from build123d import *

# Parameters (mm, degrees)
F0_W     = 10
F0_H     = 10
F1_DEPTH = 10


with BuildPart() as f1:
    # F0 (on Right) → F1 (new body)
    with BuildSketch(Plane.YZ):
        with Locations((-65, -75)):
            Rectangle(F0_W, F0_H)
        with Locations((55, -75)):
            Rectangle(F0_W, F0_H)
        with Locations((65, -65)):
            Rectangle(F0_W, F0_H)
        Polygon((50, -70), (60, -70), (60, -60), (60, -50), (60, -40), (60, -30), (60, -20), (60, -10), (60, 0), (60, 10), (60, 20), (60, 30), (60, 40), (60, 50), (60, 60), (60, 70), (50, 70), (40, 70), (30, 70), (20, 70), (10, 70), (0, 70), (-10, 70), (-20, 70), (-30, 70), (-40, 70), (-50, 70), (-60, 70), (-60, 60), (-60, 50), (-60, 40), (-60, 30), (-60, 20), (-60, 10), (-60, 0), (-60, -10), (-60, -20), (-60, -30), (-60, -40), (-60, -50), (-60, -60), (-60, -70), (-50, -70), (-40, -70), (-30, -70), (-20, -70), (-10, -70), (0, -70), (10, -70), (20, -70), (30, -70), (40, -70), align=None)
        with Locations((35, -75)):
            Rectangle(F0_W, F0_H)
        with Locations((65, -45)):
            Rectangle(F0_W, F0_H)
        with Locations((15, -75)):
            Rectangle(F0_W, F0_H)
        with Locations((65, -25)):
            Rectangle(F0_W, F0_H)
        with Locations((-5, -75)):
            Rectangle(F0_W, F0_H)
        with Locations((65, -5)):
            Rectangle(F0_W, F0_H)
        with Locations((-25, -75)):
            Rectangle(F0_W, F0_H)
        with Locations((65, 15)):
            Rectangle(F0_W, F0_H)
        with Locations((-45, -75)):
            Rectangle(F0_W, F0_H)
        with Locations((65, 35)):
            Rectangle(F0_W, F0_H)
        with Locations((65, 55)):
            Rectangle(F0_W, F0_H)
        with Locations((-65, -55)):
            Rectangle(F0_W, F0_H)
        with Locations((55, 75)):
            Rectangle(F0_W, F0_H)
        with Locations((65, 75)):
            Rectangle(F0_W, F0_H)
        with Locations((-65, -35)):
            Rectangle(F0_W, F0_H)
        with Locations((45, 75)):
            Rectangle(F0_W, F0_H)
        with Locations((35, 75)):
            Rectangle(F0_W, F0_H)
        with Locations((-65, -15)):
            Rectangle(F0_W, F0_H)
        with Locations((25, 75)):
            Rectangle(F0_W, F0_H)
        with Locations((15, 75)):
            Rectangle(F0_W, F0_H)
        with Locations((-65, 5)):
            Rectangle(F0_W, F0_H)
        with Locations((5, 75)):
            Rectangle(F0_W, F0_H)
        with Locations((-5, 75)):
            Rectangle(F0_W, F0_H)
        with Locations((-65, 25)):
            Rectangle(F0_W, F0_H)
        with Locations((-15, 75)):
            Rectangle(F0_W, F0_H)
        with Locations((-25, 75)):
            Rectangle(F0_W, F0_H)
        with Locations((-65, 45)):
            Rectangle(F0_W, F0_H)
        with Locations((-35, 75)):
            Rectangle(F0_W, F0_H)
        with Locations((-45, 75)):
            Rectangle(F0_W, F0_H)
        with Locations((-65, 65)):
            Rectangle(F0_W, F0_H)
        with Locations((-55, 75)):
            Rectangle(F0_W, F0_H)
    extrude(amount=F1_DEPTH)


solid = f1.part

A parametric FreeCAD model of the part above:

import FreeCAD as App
import Part
import Sketcher

doc = App.newDocument("Part")
params = doc.addObject("Spreadsheet::Sheet", "Params")
for row, (alias, value) in enumerate([
    ("sketch1_width", "10 mm"),
    ("pad1_length", "10 mm"),
], start=1):
    params.set(f"A{row}", alias)
    params.set(f"B{row}", "=" + value)
    params.setAlias(f"B{row}", alias)

body = doc.addObject("PartDesign::Body", "Body")
body.AllowCompound = True

# Sketch on YZ plane
sketch1 = body.newObject("Sketcher::SketchObject", "Sketch")
sketch1.AttachmentSupport = (doc.getObject("YZ_Plane"), [""])
sketch1.MapMode = "FlatFace"
sketch1.addGeometry([
    Part.LineSegment(App.Vector(-70, -70, 0), App.Vector(-70, -80, 0)),  # 0
    Part.LineSegment(App.Vector(-70, -80, 0), App.Vector(-60, -80, 0)),  # 1
    Part.LineSegment(App.Vector(-60, -80, 0), App.Vector(-60, -70, 0)),  # 2
    Part.LineSegment(App.Vector(-60, -70, 0), App.Vector(-70, -70, 0)),  # 3
    Part.LineSegment(App.Vector(50, -70, 0), App.Vector(50, -80, 0)),  # 4
    Part.LineSegment(App.Vector(50, -80, 0), App.Vector(60, -80, 0)),  # 5
    Part.LineSegment(App.Vector(60, -80, 0), App.Vector(60, -70, 0)),  # 6
    Part.LineSegment(App.Vector(60, -70, 0), App.Vector(70, -70, 0)),  # 7
    Part.LineSegment(App.Vector(70, -70, 0), App.Vector(70, -60, 0)),  # 8
    Part.LineSegment(App.Vector(70, -60, 0), App.Vector(60, -60, 0)),  # 9
    Part.LineSegment(App.Vector(60, -60, 0), App.Vector(60, -50, 0)),  # 10
    Part.LineSegment(App.Vector(60, -50, 0), App.Vector(70, -50, 0)),  # 11
    Part.LineSegment(App.Vector(70, -50, 0), App.Vector(70, -40, 0)),  # 12
    Part.LineSegment(App.Vector(70, -40, 0), App.Vector(60, -40, 0)),  # 13
    Part.LineSegment(App.Vector(60, -40, 0), App.Vector(60, -30, 0)),  # 14
    Part.LineSegment(App.Vector(60, -30, 0), App.Vector(70, -30, 0)),  # 15
    Part.LineSegment(App.Vector(70, -30, 0), App.Vector(70, -20, 0)),  # 16
    Part.LineSegment(App.Vector(70, -20, 0), App.Vector(60, -20, 0)),  # 17
    Part.LineSegment(App.Vector(60, -20, 0), App.Vector(60, -10, 0)),  # 18
    Part.LineSegment(App.Vector(60, -10, 0), App.Vector(70, -10, 0)),  # 19
    Part.LineSegment(App.Vector(70, -10, 0), App.Vector(70, 0, 0)),  # 20
    Part.LineSegment(App.Vector(70, 0, 0), App.Vector(60, 0, 0)),  # 21
    Part.LineSegment(App.Vector(60, 0, 0), App.Vector(60, 10, 0)),  # 22
    Part.LineSegment(App.Vector(60, 10, 0), App.Vector(70, 10, 0)),  # 23
    Part.LineSegment(App.Vector(70, 10, 0), App.Vector(70, 20, 0)),  # 24
    Part.LineSegment(App.Vector(70, 20, 0), App.Vector(60, 20, 0)),  # 25
    Part.LineSegment(App.Vector(60, 20, 0), App.Vector(60, 30, 0)),  # 26
    Part.LineSegment(App.Vector(60, 30, 0), App.Vector(70, 30, 0)),  # 27
    Part.LineSegment(App.Vector(70, 30, 0), App.Vector(70, 40, 0)),  # 28
    Part.LineSegment(App.Vector(70, 40, 0), App.Vector(60, 40, 0)),  # 29
    Part.LineSegment(App.Vector(60, 40, 0), App.Vector(60, 50, 0)),  # 30
    Part.LineSegment(App.Vector(60, 50, 0), App.Vector(70, 50, 0)),  # 31
    Part.LineSegment(App.Vector(70, 50, 0), App.Vector(70, 60, 0)),  # 32
    Part.LineSegment(App.Vector(70, 60, 0), App.Vector(60, 60, 0)),  # 33
    Part.LineSegment(App.Vector(60, 60, 0), App.Vector(60, 70, 0)),  # 34
    Part.LineSegment(App.Vector(60, 70, 0), App.Vector(70, 70, 0)),  # 35
    Part.LineSegment(App.Vector(70, 70, 0), App.Vector(70, 80, 0)),  # 36
    Part.LineSegment(App.Vector(70, 80, 0), App.Vector(-60, 80, 0)),  # 37
    Part.LineSegment(App.Vector(-60, 80, 0), App.Vector(-60, 70, 0)),  # 38
    Part.LineSegment(App.Vector(-60, 70, 0), App.Vector(-70, 70, 0)),  # 39
    Part.LineSegment(App.Vector(-70, 70, 0), App.Vector(-70, 60, 0)),  # 40
    Part.LineSegment(App.Vector(-70, 60, 0), App.Vector(-60, 60, 0)),  # 41
    Part.LineSegment(App.Vector(-60, 60, 0), App.Vector(-60, 50, 0)),  # 42
    Part.LineSegment(App.Vector(-60, 50, 0), App.Vector(-70, 50, 0)),  # 43
    Part.LineSegment(App.Vector(-70, 50, 0), App.Vector(-70, 40, 0)),  # 44
    Part.LineSegment(App.Vector(-70, 40, 0), App.Vector(-60, 40, 0)),  # 45
    Part.LineSegment(App.Vector(-60, 40, 0), App.Vector(-60, 30, 0)),  # 46
    Part.LineSegment(App.Vector(-60, 30, 0), App.Vector(-70, 30, 0)),  # 47
    Part.LineSegment(App.Vector(-70, 30, 0), App.Vector(-70, 20, 0)),  # 48
    Part.LineSegment(App.Vector(-70, 20, 0), App.Vector(-60, 20, 0)),  # 49
    Part.LineSegment(App.Vector(-60, 20, 0), App.Vector(-60, 10, 0)),  # 50
    Part.LineSegment(App.Vector(-60, 10, 0), App.Vector(-70, 10, 0)),  # 51
    Part.LineSegment(App.Vector(-70, 10, 0), App.Vector(-70, 0, 0)),  # 52
    Part.LineSegment(App.Vector(-70, 0, 0), App.Vector(-60, 0, 0)),  # 53
    Part.LineSegment(App.Vector(-60, 0, 0), App.Vector(-60, -10, 0)),  # 54
    Part.LineSegment(App.Vector(-60, -10, 0), App.Vector(-70, -10, 0)),  # 55
    Part.LineSegment(App.Vector(-70, -10, 0), App.Vector(-70, -20, 0)),  # 56
    Part.LineSegment(App.Vector(-70, -20, 0), App.Vector(-60, -20, 0)),  # 57
    Part.LineSegment(App.Vector(-60, -20, 0), App.Vector(-60, -30, 0)),  # 58
    Part.LineSegment(App.Vector(-60, -30, 0), App.Vector(-70, -30, 0)),  # 59
    Part.LineSegment(App.Vector(-70, -30, 0), App.Vector(-70, -40, 0)),  # 60
    Part.LineSegment(App.Vector(-70, -40, 0), App.Vector(-60, -40, 0)),  # 61
    Part.LineSegment(App.Vector(-60, -40, 0), App.Vector(-60, -50, 0)),  # 62
    Part.LineSegment(App.Vector(-60, -50, 0), App.Vector(-70, -50, 0)),  # 63
    Part.LineSegment(App.Vector(-70, -50, 0), App.Vector(-70, -60, 0)),  # 64
    Part.LineSegment(App.Vector(-70, -60, 0), App.Vector(-60, -60, 0)),  # 65
    Part.LineSegment(App.Vector(-60, -60, 0), App.Vector(-60, -70, 0)),  # 66
    Part.LineSegment(App.Vector(-60, -70, 0), App.Vector(-50, -70, 0)),  # 67
    Part.LineSegment(App.Vector(-50, -70, 0), App.Vector(-50, -80, 0)),  # 68
    Part.LineSegment(App.Vector(-50, -80, 0), App.Vector(-40, -80, 0)),  # 69
    Part.LineSegment(App.Vector(-40, -80, 0), App.Vector(-40, -70, 0)),  # 70
    Part.LineSegment(App.Vector(-40, -70, 0), App.Vector(-30, -70, 0)),  # 71
    Part.LineSegment(App.Vector(-30, -70, 0), App.Vector(-30, -80, 0)),  # 72
    Part.LineSegment(App.Vector(-30, -80, 0), App.Vector(-20, -80, 0)),  # 73
    Part.LineSegment(App.Vector(-20, -80, 0), App.Vector(-20, -70, 0)),  # 74
    Part.LineSegment(App.Vector(-20, -70, 0), App.Vector(-10, -70, 0)),  # 75
    Part.LineSegment(App.Vector(-10, -70, 0), App.Vector(-10, -80, 0)),  # 76
    Part.LineSegment(App.Vector(-10, -80, 0), App.Vector(0, -80, 0)),  # 77
    Part.LineSegment(App.Vector(0, -80, 0), App.Vector(0, -70, 0)),  # 78
    Part.LineSegment(App.Vector(0, -70, 0), App.Vector(10, -70, 0)),  # 79
    Part.LineSegment(App.Vector(10, -70, 0), App.Vector(10, -80, 0)),  # 80
    Part.LineSegment(App.Vector(10, -80, 0), App.Vector(20, -80, 0)),  # 81
    Part.LineSegment(App.Vector(20, -80, 0), App.Vector(20, -70, 0)),  # 82
    Part.LineSegment(App.Vector(20, -70, 0), App.Vector(30, -70, 0)),  # 83
    Part.LineSegment(App.Vector(30, -70, 0), App.Vector(30, -80, 0)),  # 84
    Part.LineSegment(App.Vector(30, -80, 0), App.Vector(40, -80, 0)),  # 85
    Part.LineSegment(App.Vector(40, -80, 0), App.Vector(40, -70, 0)),  # 86
    Part.LineSegment(App.Vector(40, -70, 0), App.Vector(50, -70, 0)),  # 87
], False)
sketch1.addConstraint([
    Sketcher.Constraint("Coincident", 0, 2, 1, 1),
    Sketcher.Constraint("Coincident", 1, 2, 2, 1),
    Sketcher.Constraint("Coincident", 2, 2, 3, 1),
    Sketcher.Constraint("Coincident", 3, 2, 0, 1),
    Sketcher.Constraint("Coincident", 4, 2, 5, 1),
    Sketcher.Constraint("Coincident", 5, 2, 6, 1),
    Sketcher.Constraint("Coincident", 6, 2, 7, 1),
    Sketcher.Constraint("Coincident", 7, 2, 8, 1),
    Sketcher.Constraint("Coincident", 8, 2, 9, 1),
    Sketcher.Constraint("Coincident", 9, 2, 10, 1),
    Sketcher.Constraint("Coincident", 10, 2, 11, 1),
    Sketcher.Constraint("Coincident", 11, 2, 12, 1),
    Sketcher.Constraint("Coincident", 12, 2, 13, 1),
    Sketcher.Constraint("Coincident", 13, 2, 14, 1),
    Sketcher.Constraint("Coincident", 14, 2, 15, 1),
    Sketcher.Constraint("Coincident", 15, 2, 16, 1),
    Sketcher.Constraint("Coincident", 16, 2, 17, 1),
    Sketcher.Constraint("Coincident", 17, 2, 18, 1),
    Sketcher.Constraint("Coincident", 18, 2, 19, 1),
    Sketcher.Constraint("Coincident", 19, 2, 20, 1),
    Sketcher.Constraint("Coincident", 20, 2, 21, 1),
    Sketcher.Constraint("Coincident", 21, 2, 22, 1),
    Sketcher.Constraint("Coincident", 22, 2, 23, 1),
    Sketcher.Constraint("Coincident", 23, 2, 24, 1),
    Sketcher.Constraint("Coincident", 24, 2, 25, 1),
    Sketcher.Constraint("Coincident", 25, 2, 26, 1),
    Sketcher.Constraint("Coincident", 26, 2, 27, 1),
    Sketcher.Constraint("Coincident", 27, 2, 28, 1),
    Sketcher.Constraint("Coincident", 28, 2, 29, 1),
    Sketcher.Constraint("Coincident", 29, 2, 30, 1),
    Sketcher.Constraint("Coincident", 30, 2, 31, 1),
    Sketcher.Constraint("Coincident", 31, 2, 32, 1),
    Sketcher.Constraint("Coincident", 32, 2, 33, 1),
    Sketcher.Constraint("Coincident", 33, 2, 34, 1),
    Sketcher.Constraint("Coincident", 34, 2, 35, 1),
    Sketcher.Constraint("Coincident", 35, 2, 36, 1),
    Sketcher.Constraint("Coincident", 36, 2, 37, 1),
    Sketcher.Constraint("Coincident", 37, 2, 38, 1),
    Sketcher.Constraint("Coincident", 38, 2, 39, 1),
    Sketcher.Constraint("Coincident", 39, 2, 40, 1),
    Sketcher.Constraint("Coincident", 40, 2, 41, 1),
    Sketcher.Constraint("Coincident", 41, 2, 42, 1),
    Sketcher.Constraint("Coincident", 42, 2, 43, 1),
    Sketcher.Constraint("Coincident", 43, 2, 44, 1),
    Sketcher.Constraint("Coincident", 44, 2, 45, 1),
    Sketcher.Constraint("Coincident", 45, 2, 46, 1),
    Sketcher.Constraint("Coincident", 46, 2, 47, 1),
    Sketcher.Constraint("Coincident", 47, 2, 48, 1),
    Sketcher.Constraint("Coincident", 48, 2, 49, 1),
    Sketcher.Constraint("Coincident", 49, 2, 50, 1),
    Sketcher.Constraint("Coincident", 50, 2, 51, 1),
    Sketcher.Constraint("Coincident", 51, 2, 52, 1),
    Sketcher.Constraint("Coincident", 52, 2, 53, 1),
    Sketcher.Constraint("Coincident", 53, 2, 54, 1),
    Sketcher.Constraint("Coincident", 54, 2, 55, 1),
    Sketcher.Constraint("Coincident", 55, 2, 56, 1),
    Sketcher.Constraint("Coincident", 56, 2, 57, 1),
    Sketcher.Constraint("Coincident", 57, 2, 58, 1),
    Sketcher.Constraint("Coincident", 58, 2, 59, 1),
    Sketcher.Constraint("Coincident", 59, 2, 60, 1),
    Sketcher.Constraint("Coincident", 60, 2, 61, 1),
    Sketcher.Constraint("Coincident", 61, 2, 62, 1),
    Sketcher.Constraint("Coincident", 62, 2, 63, 1),
    Sketcher.Constraint("Coincident", 63, 2, 64, 1),
    Sketcher.Constraint("Coincident", 64, 2, 65, 1),
    Sketcher.Constraint("Coincident", 65, 2, 66, 1),
    Sketcher.Constraint("Coincident", 66, 2, 67, 1),
    Sketcher.Constraint("Coincident", 67, 2, 68, 1),
    Sketcher.Constraint("Coincident", 68, 2, 69, 1),
    Sketcher.Constraint("Coincident", 69, 2, 70, 1),
    Sketcher.Constraint("Coincident", 70, 2, 71, 1),
    Sketcher.Constraint("Coincident", 71, 2, 72, 1),
    Sketcher.Constraint("Coincident", 72, 2, 73, 1),
    Sketcher.Constraint("Coincident", 73, 2, 74, 1),
    Sketcher.Constraint("Coincident", 74, 2, 75, 1),
    Sketcher.Constraint("Coincident", 75, 2, 76, 1),
    Sketcher.Constraint("Coincident", 76, 2, 77, 1),
    Sketcher.Constraint("Coincident", 77, 2, 78, 1),
    Sketcher.Constraint("Coincident", 78, 2, 79, 1),
    Sketcher.Constraint("Coincident", 79, 2, 80, 1),
    Sketcher.Constraint("Coincident", 80, 2, 81, 1),
    Sketcher.Constraint("Coincident", 81, 2, 82, 1),
    Sketcher.Constraint("Coincident", 82, 2, 83, 1),
    Sketcher.Constraint("Coincident", 83, 2, 84, 1),
    Sketcher.Constraint("Coincident", 84, 2, 85, 1),
    Sketcher.Constraint("Coincident", 85, 2, 86, 1),
    Sketcher.Constraint("Coincident", 86, 2, 87, 1),
    Sketcher.Constraint("Coincident", 87, 2, 4, 1),
    Sketcher.Constraint("Vertical", 0),
    Sketcher.Constraint("Horizontal", 1),
    Sketcher.Constraint("Vertical", 2),
    Sketcher.Constraint("Horizontal", 3),
    Sketcher.Constraint("Vertical", 4),
    Sketcher.Constraint("Horizontal", 5),
    Sketcher.Constraint("Vertical", 6),
    Sketcher.Constraint("Horizontal", 7),
    Sketcher.Constraint("Vertical", 8),
    Sketcher.Constraint("Horizontal", 9),
    Sketcher.Constraint("Vertical", 10),
    Sketcher.Constraint("Horizontal", 11),
    Sketcher.Constraint("Vertical", 12),
    Sketcher.Constraint("Horizontal", 13),
    Sketcher.Constraint("Vertical", 14),
    Sketcher.Constraint("Horizontal", 15),
    Sketcher.Constraint("Vertical", 16),
    Sketcher.Constraint("Horizontal", 17),
    Sketcher.Constraint("Vertical", 18),
    Sketcher.Constraint("Horizontal", 19),
    Sketcher.Constraint("Vertical", 20),
    Sketcher.Constraint("Horizontal", 21),
    Sketcher.Constraint("Vertical", 22),
    Sketcher.Constraint("Horizontal", 23),
    Sketcher.Constraint("Vertical", 24),
    Sketcher.Constraint("Horizontal", 25),
    Sketcher.Constraint("Vertical", 26),
    Sketcher.Constraint("Horizontal", 27),
    Sketcher.Constraint("Vertical", 28),
    Sketcher.Constraint("Horizontal", 29),
    Sketcher.Constraint("Vertical", 30),
    Sketcher.Constraint("Horizontal", 31),
    Sketcher.Constraint("Vertical", 32),
    Sketcher.Constraint("Horizontal", 33),
    Sketcher.Constraint("Vertical", 34),
    Sketcher.Constraint("Horizontal", 35),
    Sketcher.Constraint("Vertical", 36),
    Sketcher.Constraint("Horizontal", 37),
    Sketcher.Constraint("Vertical", 38),
    Sketcher.Constraint("Horizontal", 39),
    Sketcher.Constraint("Vertical", 40),
    Sketcher.Constraint("Horizontal", 41),
    Sketcher.Constraint("Vertical", 42),
    Sketcher.Constraint("Horizontal", 43),
    Sketcher.Constraint("Vertical", 44),
    Sketcher.Constraint("Horizontal", 45),
    Sketcher.Constraint("Vertical", 46),
    Sketcher.Constraint("Horizontal", 47),
    Sketcher.Constraint("Vertical", 48),
    Sketcher.Constraint("Horizontal", 49),
    Sketcher.Constraint("Vertical", 50),
    Sketcher.Constraint("Horizontal", 51),
    Sketcher.Constraint("Vertical", 52),
    Sketcher.Constraint("Horizontal", 53),
    Sketcher.Constraint("Vertical", 54),
    Sketcher.Constraint("Horizontal", 55),
    Sketcher.Constraint("Vertical", 56),
    Sketcher.Constraint("Horizontal", 57),
    Sketcher.Constraint("Vertical", 58),
    Sketcher.Constraint("Horizontal", 59),
    Sketcher.Constraint("Vertical", 60),
    Sketcher.Constraint("Horizontal", 61),
    Sketcher.Constraint("Vertical", 62),
    Sketcher.Constraint("Horizontal", 63),
    Sketcher.Constraint("Vertical", 64),
    Sketcher.Constraint("Horizontal", 65),
    Sketcher.Constraint("Vertical", 66),
    Sketcher.Constraint("Horizontal", 67),
    Sketcher.Constraint("Vertical", 68),
    Sketcher.Constraint("Horizontal", 69),
    Sketcher.Constraint("Vertical", 70),
    Sketcher.Constraint("Horizontal", 71),
    Sketcher.Constraint("Vertical", 72),
    Sketcher.Constraint("Horizontal", 73),
    Sketcher.Constraint("Vertical", 74),
    Sketcher.Constraint("Horizontal", 75),
    Sketcher.Constraint("Vertical", 76),
    Sketcher.Constraint("Horizontal", 77),
    Sketcher.Constraint("Vertical", 78),
    Sketcher.Constraint("Horizontal", 79),
    Sketcher.Constraint("Vertical", 80),
    Sketcher.Constraint("Horizontal", 81),
    Sketcher.Constraint("Vertical", 82),
    Sketcher.Constraint("Horizontal", 83),
    Sketcher.Constraint("Vertical", 84),
    Sketcher.Constraint("Horizontal", 85),
    Sketcher.Constraint("Vertical", 86),
    Sketcher.Constraint("Horizontal", 87),
    Sketcher.Constraint("Coincident", 66, 2, 2, 2),
    Sketcher.Constraint("Symmetric", 2, 2, 34, 2, -1, 1),
    Sketcher.Constraint("Symmetric", 0, 2, 36, 2, -1, 1),
    Sketcher.Constraint("Symmetric", 5, 2, 37, 2, -1, 1),
    Sketcher.Constraint("Symmetric", 7, 2, 39, 2, -1, 1),
    Sketcher.Constraint("Symmetric", 9, 2, 41, 2, -1, 1),
    Sketcher.Constraint("Symmetric", 11, 2, 43, 2, -1, 1),
    Sketcher.Constraint("Symmetric", 13, 2, 45, 2, -1, 1),
    Sketcher.Constraint("Symmetric", 15, 2, 47, 2, -1, 1),
    Sketcher.Constraint("Symmetric", 17, 2, 49, 2, -1, 1),
    Sketcher.Constraint("Symmetric", 19, 2, 51, 2, -1, 1),
    Sketcher.Constraint("Symmetric", 21, 2, 53, 2, -1, 1),
    Sketcher.Constraint("Symmetric", 23, 2, 55, 2, -1, 1),
    Sketcher.Constraint("Symmetric", 25, 2, 57, 2, -1, 1),
    Sketcher.Constraint("Symmetric", 27, 2, 59, 2, -1, 1),
    Sketcher.Constraint("Symmetric", 29, 2, 61, 2, -1, 1),
    Sketcher.Constraint("Symmetric", 31, 2, 63, 2, -1, 1),
    Sketcher.Constraint("Symmetric", 2, 2, 6, 2, -2),
    Sketcher.Constraint("Symmetric", 32, 2, 40, 2, -2),
    Sketcher.Constraint("Symmetric", 30, 2, 42, 2, -2),
    Sketcher.Constraint("Symmetric", 28, 2, 44, 2, -2),
    Sketcher.Constraint("Symmetric", 26, 2, 46, 2, -2),
    Sketcher.Constraint("Symmetric", 24, 2, 48, 2, -2),
    Sketcher.Constraint("Symmetric", 22, 2, 50, 2, -2),
    Sketcher.Constraint("Symmetric", 9, 2, 65, 2, -2),
    Sketcher.Constraint("Symmetric", 4, 2, 68, 2, -2),
    Sketcher.Constraint("Symmetric", 75, 2, 79, 2, -2),
    Sketcher.Constraint("Symmetric", 73, 2, 81, 2, -2),
    Sketcher.Constraint("Symmetric", 71, 2, 83, 2, -2),
    Sketcher.Constraint("Symmetric", 69, 2, 85, 2, -2),
    Sketcher.Constraint("PointOnObject", 20, 2, -1),
    Sketcher.Constraint("PointOnObject", 77, 2, -2),
    Sketcher.Constraint("Horizontal", 67, 2, 70, 2),
    Sketcher.Constraint("Horizontal", 69, 2, 72, 2),
    Sketcher.Constraint("Horizontal", 71, 2, 74, 2),
    Sketcher.Constraint("Horizontal", 73, 2, 76, 2),
    Sketcher.Constraint("Horizontal", 83, 2, 86, 2),
    Sketcher.Constraint("Vertical", 8, 2, 11, 2),
    Sketcher.Constraint("Vertical", 10, 2, 13, 2),
    Sketcher.Constraint("Vertical", 12, 2, 15, 2),
    Sketcher.Constraint("Vertical", 14, 2, 17, 2),
    Sketcher.Constraint("Vertical", 16, 2, 19, 2),
    Sketcher.Constraint("Vertical", 32, 2, 35, 2),
    Sketcher.Constraint("Equal", 3, 5),
    Sketcher.Constraint("Equal", 67, 69),
    Sketcher.Constraint("Equal", 69, 71),
    Sketcher.Constraint("Equal", 71, 73),
    Sketcher.Constraint("Equal", 73, 75),
    Sketcher.Constraint("Equal", 75, 77),
    Sketcher.Constraint("Equal", 87, 0),
    Sketcher.Constraint("Equal", 6, 8),
    Sketcher.Constraint("Equal", 8, 10),
    Sketcher.Constraint("Equal", 10, 12),
    Sketcher.Constraint("Equal", 12, 14),
    Sketcher.Constraint("Equal", 14, 16),
    Sketcher.Constraint("Equal", 16, 18),
    Sketcher.Constraint("Equal", 18, 20),
    Sketcher.Constraint("DistanceX", 1, 1, 1, 2, 10.0),
])
sketch1.setExpression("Constraints[233]", "Params.sketch1_width")
pad1 = body.newObject("PartDesign::Pad", "Pad")
pad1.Profile = sketch1
pad1.setExpression("Length", "Params.pad1_length")

doc.recompute()
